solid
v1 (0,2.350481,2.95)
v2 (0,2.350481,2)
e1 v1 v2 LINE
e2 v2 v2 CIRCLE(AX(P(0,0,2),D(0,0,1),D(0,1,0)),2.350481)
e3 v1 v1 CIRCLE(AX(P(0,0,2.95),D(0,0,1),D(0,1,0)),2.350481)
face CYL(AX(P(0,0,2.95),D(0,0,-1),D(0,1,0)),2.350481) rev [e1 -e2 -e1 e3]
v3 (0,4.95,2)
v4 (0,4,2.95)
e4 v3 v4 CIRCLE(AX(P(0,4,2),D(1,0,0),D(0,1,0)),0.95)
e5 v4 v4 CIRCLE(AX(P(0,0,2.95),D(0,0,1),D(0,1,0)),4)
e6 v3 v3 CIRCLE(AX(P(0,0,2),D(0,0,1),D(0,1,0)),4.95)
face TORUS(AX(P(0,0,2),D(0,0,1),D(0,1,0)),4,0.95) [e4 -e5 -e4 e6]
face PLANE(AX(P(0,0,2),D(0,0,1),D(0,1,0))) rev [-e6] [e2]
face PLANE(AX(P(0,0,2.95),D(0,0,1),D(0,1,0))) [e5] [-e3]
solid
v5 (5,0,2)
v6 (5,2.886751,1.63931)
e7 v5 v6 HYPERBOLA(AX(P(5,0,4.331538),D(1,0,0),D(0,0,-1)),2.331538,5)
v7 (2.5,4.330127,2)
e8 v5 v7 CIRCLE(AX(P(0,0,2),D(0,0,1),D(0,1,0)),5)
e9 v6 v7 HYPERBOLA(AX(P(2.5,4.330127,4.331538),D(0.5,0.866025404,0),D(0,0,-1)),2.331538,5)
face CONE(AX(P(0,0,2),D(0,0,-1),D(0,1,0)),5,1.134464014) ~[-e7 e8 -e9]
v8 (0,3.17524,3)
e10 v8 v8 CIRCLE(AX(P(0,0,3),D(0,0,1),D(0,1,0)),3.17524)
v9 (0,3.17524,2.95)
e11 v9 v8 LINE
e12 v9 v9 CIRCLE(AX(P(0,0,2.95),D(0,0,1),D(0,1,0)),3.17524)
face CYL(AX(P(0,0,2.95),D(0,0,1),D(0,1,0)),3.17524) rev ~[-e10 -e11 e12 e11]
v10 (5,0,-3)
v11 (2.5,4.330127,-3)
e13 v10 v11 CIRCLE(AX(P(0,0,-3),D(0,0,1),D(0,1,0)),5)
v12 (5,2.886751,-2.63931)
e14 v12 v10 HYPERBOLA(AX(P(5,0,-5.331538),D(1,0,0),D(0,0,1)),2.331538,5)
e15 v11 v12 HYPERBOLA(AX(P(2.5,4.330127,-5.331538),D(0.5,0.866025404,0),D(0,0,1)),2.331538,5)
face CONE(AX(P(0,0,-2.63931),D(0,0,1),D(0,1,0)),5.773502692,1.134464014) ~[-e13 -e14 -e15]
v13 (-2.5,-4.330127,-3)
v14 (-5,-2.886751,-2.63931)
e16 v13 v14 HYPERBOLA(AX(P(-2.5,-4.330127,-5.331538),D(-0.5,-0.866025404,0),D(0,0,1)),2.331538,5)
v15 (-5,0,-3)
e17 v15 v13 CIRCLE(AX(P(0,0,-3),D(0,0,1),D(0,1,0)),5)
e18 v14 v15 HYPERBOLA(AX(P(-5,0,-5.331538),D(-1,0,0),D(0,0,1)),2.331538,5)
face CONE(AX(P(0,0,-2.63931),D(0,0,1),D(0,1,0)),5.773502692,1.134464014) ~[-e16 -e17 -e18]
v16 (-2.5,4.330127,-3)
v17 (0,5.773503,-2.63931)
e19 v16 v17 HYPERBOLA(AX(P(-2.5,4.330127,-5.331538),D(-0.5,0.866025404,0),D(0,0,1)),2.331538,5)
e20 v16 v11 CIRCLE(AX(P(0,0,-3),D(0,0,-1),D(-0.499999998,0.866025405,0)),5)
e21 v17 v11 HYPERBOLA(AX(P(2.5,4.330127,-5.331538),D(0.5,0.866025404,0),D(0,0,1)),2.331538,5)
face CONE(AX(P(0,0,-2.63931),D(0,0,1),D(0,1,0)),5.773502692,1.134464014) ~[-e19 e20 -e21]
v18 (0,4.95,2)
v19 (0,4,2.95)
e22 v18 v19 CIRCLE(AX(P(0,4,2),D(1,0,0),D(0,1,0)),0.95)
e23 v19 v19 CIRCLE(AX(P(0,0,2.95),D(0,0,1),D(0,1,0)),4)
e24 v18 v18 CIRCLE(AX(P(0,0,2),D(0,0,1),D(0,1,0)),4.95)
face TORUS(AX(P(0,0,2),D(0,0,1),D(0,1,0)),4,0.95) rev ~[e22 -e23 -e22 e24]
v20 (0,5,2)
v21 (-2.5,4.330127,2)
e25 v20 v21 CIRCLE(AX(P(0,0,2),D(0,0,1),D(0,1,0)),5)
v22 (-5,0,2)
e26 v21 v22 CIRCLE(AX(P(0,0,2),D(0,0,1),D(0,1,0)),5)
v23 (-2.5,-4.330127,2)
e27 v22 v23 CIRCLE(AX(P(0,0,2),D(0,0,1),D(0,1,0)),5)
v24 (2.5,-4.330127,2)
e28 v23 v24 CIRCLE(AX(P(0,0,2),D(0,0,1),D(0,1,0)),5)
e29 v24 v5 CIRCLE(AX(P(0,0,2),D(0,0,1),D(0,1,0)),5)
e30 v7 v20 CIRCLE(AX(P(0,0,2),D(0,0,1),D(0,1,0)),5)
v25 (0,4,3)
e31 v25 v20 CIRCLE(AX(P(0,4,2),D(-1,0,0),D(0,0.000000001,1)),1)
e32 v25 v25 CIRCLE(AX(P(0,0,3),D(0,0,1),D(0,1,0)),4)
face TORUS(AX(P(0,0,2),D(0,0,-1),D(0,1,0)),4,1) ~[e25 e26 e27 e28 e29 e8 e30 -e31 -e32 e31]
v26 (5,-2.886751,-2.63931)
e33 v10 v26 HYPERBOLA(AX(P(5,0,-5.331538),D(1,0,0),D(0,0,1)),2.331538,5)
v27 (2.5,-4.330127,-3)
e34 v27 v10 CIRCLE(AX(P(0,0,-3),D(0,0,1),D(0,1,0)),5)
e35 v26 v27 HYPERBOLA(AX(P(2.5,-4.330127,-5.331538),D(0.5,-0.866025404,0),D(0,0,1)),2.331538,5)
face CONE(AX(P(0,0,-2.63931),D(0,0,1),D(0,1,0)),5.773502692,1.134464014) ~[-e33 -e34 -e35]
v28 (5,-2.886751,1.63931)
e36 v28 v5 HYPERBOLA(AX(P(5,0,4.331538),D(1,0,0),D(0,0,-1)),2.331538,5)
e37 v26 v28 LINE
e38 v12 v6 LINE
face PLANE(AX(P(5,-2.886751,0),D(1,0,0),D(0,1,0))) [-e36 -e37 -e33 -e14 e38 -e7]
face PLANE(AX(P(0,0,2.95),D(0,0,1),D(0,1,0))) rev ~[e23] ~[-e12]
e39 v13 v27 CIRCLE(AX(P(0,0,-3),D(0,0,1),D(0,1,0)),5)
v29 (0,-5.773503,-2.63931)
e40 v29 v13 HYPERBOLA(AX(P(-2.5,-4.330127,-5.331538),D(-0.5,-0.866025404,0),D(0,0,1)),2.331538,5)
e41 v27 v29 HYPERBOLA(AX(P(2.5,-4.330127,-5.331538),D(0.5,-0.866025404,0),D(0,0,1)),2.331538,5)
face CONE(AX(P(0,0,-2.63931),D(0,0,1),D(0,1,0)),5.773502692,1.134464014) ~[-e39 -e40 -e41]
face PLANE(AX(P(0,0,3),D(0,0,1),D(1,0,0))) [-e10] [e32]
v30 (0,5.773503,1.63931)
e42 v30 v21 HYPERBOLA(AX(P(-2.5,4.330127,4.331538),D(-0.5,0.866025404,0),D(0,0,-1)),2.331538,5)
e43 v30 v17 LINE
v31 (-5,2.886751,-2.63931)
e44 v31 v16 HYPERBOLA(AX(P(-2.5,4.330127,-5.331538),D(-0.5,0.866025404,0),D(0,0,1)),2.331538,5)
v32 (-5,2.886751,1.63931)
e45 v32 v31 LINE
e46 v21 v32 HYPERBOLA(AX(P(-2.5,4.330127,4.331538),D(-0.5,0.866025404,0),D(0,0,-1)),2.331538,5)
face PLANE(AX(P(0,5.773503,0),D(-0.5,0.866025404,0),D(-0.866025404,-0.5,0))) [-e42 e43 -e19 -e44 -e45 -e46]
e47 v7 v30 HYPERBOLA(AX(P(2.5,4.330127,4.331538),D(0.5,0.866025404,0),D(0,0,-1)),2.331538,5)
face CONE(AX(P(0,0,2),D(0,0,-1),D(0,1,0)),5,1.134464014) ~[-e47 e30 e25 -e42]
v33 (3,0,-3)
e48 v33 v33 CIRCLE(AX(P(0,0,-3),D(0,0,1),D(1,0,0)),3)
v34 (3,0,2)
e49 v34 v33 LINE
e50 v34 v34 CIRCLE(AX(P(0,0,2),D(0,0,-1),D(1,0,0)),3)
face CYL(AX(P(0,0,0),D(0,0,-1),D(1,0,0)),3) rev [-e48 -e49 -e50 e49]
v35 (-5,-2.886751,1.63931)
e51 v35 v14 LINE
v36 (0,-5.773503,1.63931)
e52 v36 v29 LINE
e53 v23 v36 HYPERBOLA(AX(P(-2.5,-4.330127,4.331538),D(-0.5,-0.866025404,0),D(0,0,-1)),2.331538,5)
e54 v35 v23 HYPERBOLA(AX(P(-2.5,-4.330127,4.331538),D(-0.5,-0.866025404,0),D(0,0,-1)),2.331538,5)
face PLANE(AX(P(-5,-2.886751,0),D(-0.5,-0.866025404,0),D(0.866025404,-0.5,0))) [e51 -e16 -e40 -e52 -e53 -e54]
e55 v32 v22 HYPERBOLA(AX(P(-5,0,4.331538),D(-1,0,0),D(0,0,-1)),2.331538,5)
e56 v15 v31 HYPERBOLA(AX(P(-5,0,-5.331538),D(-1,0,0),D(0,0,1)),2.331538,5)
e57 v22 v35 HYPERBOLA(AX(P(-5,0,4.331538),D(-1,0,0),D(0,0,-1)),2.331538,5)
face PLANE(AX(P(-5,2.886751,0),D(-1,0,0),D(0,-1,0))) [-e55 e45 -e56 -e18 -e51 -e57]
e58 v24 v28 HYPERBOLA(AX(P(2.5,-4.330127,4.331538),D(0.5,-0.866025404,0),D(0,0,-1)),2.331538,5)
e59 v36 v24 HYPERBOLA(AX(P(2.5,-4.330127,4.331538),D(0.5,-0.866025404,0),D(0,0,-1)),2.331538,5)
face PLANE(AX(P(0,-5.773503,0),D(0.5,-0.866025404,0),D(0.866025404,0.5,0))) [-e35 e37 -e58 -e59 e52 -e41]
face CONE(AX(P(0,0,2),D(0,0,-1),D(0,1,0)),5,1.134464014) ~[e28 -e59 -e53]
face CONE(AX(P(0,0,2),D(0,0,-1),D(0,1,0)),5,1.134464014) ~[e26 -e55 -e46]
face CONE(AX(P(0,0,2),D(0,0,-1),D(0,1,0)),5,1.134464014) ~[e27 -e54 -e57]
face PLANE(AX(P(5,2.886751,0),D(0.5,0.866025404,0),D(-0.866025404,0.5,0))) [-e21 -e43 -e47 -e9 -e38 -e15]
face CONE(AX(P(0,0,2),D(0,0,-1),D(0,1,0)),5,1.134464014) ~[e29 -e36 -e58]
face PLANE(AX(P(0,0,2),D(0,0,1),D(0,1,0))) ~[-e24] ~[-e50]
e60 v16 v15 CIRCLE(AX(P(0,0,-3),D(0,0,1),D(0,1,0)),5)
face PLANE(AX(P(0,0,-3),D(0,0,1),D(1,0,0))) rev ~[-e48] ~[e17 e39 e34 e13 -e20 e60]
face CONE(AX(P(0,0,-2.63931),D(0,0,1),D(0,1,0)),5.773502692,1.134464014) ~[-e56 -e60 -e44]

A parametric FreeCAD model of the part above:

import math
import FreeCAD as App
import Part
import Sketcher

V = App.Vector
Q = App.Units.Quantity


def add_polygon(sketch, points):
    """Adds a closed chain of lines whose ends are joined by coincident constraints."""
    first, n = sketch.GeometryCount, len(points)
    for a, b in zip(points, points[1:] + points[:1]):
        sketch.addGeometry(Part.LineSegment(App.Vector(*a, 0), App.Vector(*b, 0)), False)
    for i in range(n):
        sketch.addConstraint(Sketcher.Constraint("Coincident", first + i, 2, first + (i + 1) % n, 1))

doc = App.newDocument("Part")
body = doc.addObject("PartDesign::Body", "Body")

# Sketch on XY plane
sketch1 = doc.addObject("Sketcher::SketchObject", "Sketch")
body.addObject(sketch1)
sketch1.AttachmentSupport = (doc.XY_Plane, [""])
sketch1.MapMode = "FlatFace"
add_polygon(sketch1, [(0, -5.773503), (5, -2.886751), (5, 2.886751), (0, 5.773503), (-5, 2.886751), (-5, -2.886751)])  # lines 0-5
sketch1.addGeometry(Part.Circle(V(0, 0, 0), V(0, 0, 1), 3), False)  # 6
sketch1.addConstraint([
    Sketcher.Constraint("Vertical", 1),
    Sketcher.Constraint("Vertical", 4),
    Sketcher.Constraint("Coincident", 6, 3, -1, 1),
    Sketcher.Constraint("Symmetric", 0, 2, 3, 2, -1, 1),
    Sketcher.Constraint("Symmetric", 2, 2, 5, 2, -1, 1),
    Sketcher.Constraint("PointOnObject", 2, 2, -2),
    Sketcher.Constraint("Parallel", 2, 5),
    Sketcher.Constraint("Horizontal", 1, 2, 3, 2),
    Sketcher.Constraint("Diameter", 6, Q("6 mm")),
    Sketcher.Constraint("Angle", 0, Q("30 deg")),
    Sketcher.Constraint("DistanceX", -1, 1, 0, 2, Q("5 mm")),
    Sketcher.Constraint("DistanceY", 1, 1, 1, 2, Q("5.773503 mm")),
])
pad1 = doc.addObject("PartDesign::Pad", "Pad")
body.addObject(pad1)
pad1.Profile = sketch1
pad1.Length = 6
pad1.Midplane = True

# Sketch on YZ plane
sketch2 = doc.addObject("Sketcher::SketchObject", "Sketch001")
body.addObject(sketch2)
sketch2.AttachmentSupport = (doc.YZ_Plane, [""])
sketch2.MapMode = "FlatFace"
sketch2.addGeometry([
    Part.LineSegment(V(7.043503, -4.27, 0), V(7.043503, 4.27, 0)),  # 0
    Part.LineSegment(V(7.043503, 4.27, 0), V(4, 4.27, 0)),  # 1
    Part.LineSegment(V(4, 4.27, 0), V(4, 3, 0)),  # 2
    Part.ArcOfCircle(Part.Circle(V(4, 2, 0), V(0, 0, 1), 1), math.radians(0), math.radians(90)),  # 3
    Part.LineSegment(V(5, 2, 0), V(5.773503, 1.63931, 0)),  # 4
    Part.LineSegment(V(5.773503, 1.63931, 0), V(5.773503, -2.63931, 0)),  # 5
    Part.LineSegment(V(5.773503, -2.63931, 0), V(5, -3, 0)),  # 6
    Part.LineSegment(V(5, -3, 0), V(0, -3, 0)),  # 7
    Part.LineSegment(V(0, -3, 0), V(0, -4.27, 0)),  # 8
    Part.LineSegment(V(0, -4.27, 0), V(7.043503, -4.27, 0)),  # 9
    Part.LineSegment(V(3.17524, 4.27, 0), V(0, 4.27, 0)),  # 10
    Part.LineSegment(V(0, 4.27, 0), V(0, 2, 0)),  # 11
    Part.LineSegment(V(0, 2, 0), V(4.95, 2, 0)),  # 12
    Part.ArcOfCircle(Part.Circle(V(4, 2, 0), V(0, 0, 1), 0.95), math.radians(0), math.radians(90)),  # 13
    Part.LineSegment(V(4, 2.95, 0), V(3.17524, 2.95, 0)),  # 14
    Part.LineSegment(V(3.17524, 2.95, 0), V(3.17524, 4.27, 0)),  # 15
], False)
sketch2.addConstraint([
    Sketcher.Constraint("Coincident", 0, 2, 1, 1),
    Sketcher.Constraint("Coincident", 1, 2, 2, 1),
    Sketcher.Constraint("Coincident", 2, 2, 3, 2),
    Sketcher.Constraint("Coincident", 3, 1, 4, 1),
    Sketcher.Constraint("Coincident", 4, 2, 5, 1),
    Sketcher.Constraint("Coincident", 5, 2, 6, 1),
    Sketcher.Constraint("Coincident", 6, 2, 7, 1),
    Sketcher.Constraint("Coincident", 7, 2, 8, 1),
    Sketcher.Constraint("Coincident", 8, 2, 9, 1),
    Sketcher.Constraint("Coincident", 9, 2, 0, 1),
    Sketcher.Constraint("Coincident", 10, 2, 11, 1),
    Sketcher.Constraint("Coincident", 11, 2, 12, 1),
    Sketcher.Constraint("Coincident", 12, 2, 13, 1),
    Sketcher.Constraint("Tangent", 13, 2, 14, 1),
    Sketcher.Constraint("Coincident", 14, 2, 15, 1),
    Sketcher.Constraint("Coincident", 15, 2, 10, 1),
    Sketcher.Constraint("Vertical", 0),
    Sketcher.Constraint("Horizontal", 1),
    Sketcher.Constraint("Vertical", 2),
    Sketcher.Constraint("Vertical", 5),
    Sketcher.Constraint("Horizontal", 7),
    Sketcher.Constraint("Vertical", 8),
    Sketcher.Constraint("Horizontal", 9),
    Sketcher.Constraint("Horizontal", 10),
    Sketcher.Constraint("Vertical", 11),
    Sketcher.Constraint("Horizontal", 12),
    Sketcher.Constraint("Horizontal", 14),
    Sketcher.Constraint("Vertical", 15),
    Sketcher.Constraint("Coincident", 13, 3, 3, 3),
    Sketcher.Constraint("Symmetric", 8, 2, 10, 2, -1, 1),
    Sketcher.Constraint("PointOnObject", 7, 2, -2),
    Sketcher.Constraint("Horizontal", 13, 3, 3, 1),
    Sketcher.Constraint("Horizontal", 1, 2, 10, 2),
    Sketcher.Constraint("Horizontal", 3, 1, 11, 2),
    Sketcher.Constraint("Vertical", 13, 3, 1, 2),
    Sketcher.Constraint("Vertical", 3, 1, 6, 2),
    Sketcher.Constraint("Equal", 2, 8),
    Sketcher.Constraint("Equal", 4, 6),
    Sketcher.Constraint("Radius", 3, Q("1 mm")),
    Sketcher.Constraint("DistanceX", 7, 2, 7, 1, Q("5 mm")),
    Sketcher.Constraint("Angle", 4, Q("-25 deg")),
    Sketcher.Constraint("Radius", 13, Q("0.95 mm")),
    Sketcher.Constraint("DistanceY", -1, 1, 3, 3, Q("2 mm")),
    Sketcher.Constraint("DistanceY", 0, 1, 0, 2, Q("8.54 mm")),
    Sketcher.Constraint("DistanceX", 4, 2, 0, 2, Q("1.27 mm")),
    Sketcher.Constraint("DistanceX", 10, 2, 10, 1, Q("3.17524 mm")),
    Sketcher.Constraint("DistanceY", 5, 2, 5, 1, Q("4.27862 mm")),
])
groove = doc.addObject("PartDesign::Groove", "Groove")
body.addObject(groove)
groove.Profile = sketch2
groove.ReferenceAxis = (sketch2, ["V_Axis"])
groove.Angle = 360
body2 = doc.addObject("PartDesign::Body", "Body001")

# Sketch on YZ plane
sketch3 = doc.addObject("Sketcher::SketchObject", "Sketch002")
body2.addObject(sketch3)
sketch3.AttachmentSupport = (doc.getObject("YZ_Plane001"), [""])
sketch3.MapMode = "FlatFace"
sketch3.addGeometry([
    Part.LineSegment(V(4, 2.95, 0), V(2.350481, 2.95, 0)),
    Part.LineSegment(V(2.350481, 2.95, 0), V(2.350481, 2, 0)),
    Part.LineSegment(V(2.350481, 2, 0), V(4.95, 2, 0)),
    Part.ArcOfCircle(Part.Circle(V(4, 2, 0), V(0, 0, 1), 0.95), math.radians(0), math.radians(90)),
], False)
sketch3.addConstraint([
    Sketcher.Constraint("Coincident", 0, 2, 1, 1),
    Sketcher.Constraint("Coincident", 1, 2, 2, 1),
    Sketcher.Constraint("Coincident", 2, 2, 3, 1),
    Sketcher.Constraint("Tangent", 3, 2, 0, 1),
    Sketcher.Constraint("Horizontal", 0),
    Sketcher.Constraint("Vertical", 1),
    Sketcher.Constraint("Horizontal", 2),
    Sketcher.Constraint("Horizontal", 3, 3, 1, 2),
    Sketcher.Constraint("Radius", 3, Q("0.95 mm")),
    Sketcher.Constraint("DistanceX", -1, 1, 3, 3, Q("4 mm")),
    Sketcher.Constraint("DistanceY", -1, 1, 3, 3, Q("2 mm")),
    Sketcher.Constraint("DistanceX", 0, 2, 0, 1, Q("1.649519 mm")),
])
revolution = doc.addObject("PartDesign::Revolution", "Revolution")
body2.addObject(revolution)
revolution.Profile = sketch3
revolution.ReferenceAxis = (sketch3, ["V_Axis"])
revolution.Angle = 360

doc.recompute()
